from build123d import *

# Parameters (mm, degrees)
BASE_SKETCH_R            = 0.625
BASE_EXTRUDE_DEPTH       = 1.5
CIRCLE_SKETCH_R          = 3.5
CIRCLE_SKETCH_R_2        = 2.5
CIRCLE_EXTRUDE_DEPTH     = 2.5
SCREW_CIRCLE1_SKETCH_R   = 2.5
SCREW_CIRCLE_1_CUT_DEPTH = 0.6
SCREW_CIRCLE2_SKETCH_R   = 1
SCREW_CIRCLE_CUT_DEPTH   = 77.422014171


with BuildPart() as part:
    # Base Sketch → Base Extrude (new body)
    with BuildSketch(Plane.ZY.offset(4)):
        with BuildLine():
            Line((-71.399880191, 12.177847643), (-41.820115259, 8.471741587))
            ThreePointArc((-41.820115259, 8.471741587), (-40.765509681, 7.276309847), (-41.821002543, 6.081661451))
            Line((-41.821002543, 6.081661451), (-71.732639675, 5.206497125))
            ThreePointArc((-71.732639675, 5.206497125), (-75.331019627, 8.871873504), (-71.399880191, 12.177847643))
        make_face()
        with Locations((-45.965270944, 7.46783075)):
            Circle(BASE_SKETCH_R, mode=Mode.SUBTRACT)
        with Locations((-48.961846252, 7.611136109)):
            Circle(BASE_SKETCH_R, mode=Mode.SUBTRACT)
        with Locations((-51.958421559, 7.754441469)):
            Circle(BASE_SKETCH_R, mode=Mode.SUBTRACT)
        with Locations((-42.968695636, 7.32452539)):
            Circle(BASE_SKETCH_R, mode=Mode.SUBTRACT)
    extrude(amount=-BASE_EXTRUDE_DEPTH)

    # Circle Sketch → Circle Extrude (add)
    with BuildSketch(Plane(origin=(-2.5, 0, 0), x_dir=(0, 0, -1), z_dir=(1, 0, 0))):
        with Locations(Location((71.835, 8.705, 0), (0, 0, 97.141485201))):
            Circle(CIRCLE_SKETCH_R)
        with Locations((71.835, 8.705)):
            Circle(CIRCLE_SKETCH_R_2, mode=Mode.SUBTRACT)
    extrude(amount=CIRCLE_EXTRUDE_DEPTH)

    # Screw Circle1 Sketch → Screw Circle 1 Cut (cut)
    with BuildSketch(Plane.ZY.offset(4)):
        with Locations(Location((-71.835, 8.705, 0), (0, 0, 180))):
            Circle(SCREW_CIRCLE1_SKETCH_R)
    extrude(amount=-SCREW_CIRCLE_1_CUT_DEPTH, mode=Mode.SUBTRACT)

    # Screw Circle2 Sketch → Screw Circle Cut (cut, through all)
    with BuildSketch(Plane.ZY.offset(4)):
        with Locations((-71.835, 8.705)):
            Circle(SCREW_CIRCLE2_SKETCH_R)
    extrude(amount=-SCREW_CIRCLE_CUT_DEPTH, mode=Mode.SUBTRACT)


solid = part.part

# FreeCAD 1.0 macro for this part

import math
import FreeCAD as App
import Part
import Sketcher
from FreeCAD import Vector
Q = App.Units.Quantity

doc = App.newDocument("Part")
body = doc.addObject("PartDesign::Body", "Body")

# Sketch on YZ plane
sketch1 = body.newObject("Sketcher::SketchObject", "Sketch")
sketch1.AttachmentSupport = (doc.getObject("YZ_Plane"), [""])
sketch1.MapMode = "FlatFace"
sketch1.AttachmentOffset = App.Placement(Vector(0, 0, -4), App.Rotation())
sketch1.addGeometry(Part.LineSegment(Vector(8.471742, -41.820115, 0), Vector(12.177848, -71.39988, 0)), False)
sketch1.addGeometry(Part.ArcOfCircle(Part.Circle(Vector(8.705, -71.835, 0), Vector(0, 0, 1), 3.5), math.radians(178.3241), math.radians(367.141485)), False)
sketch1.addGeometry(Part.LineSegment(Vector(5.206497, -71.73264, 0), Vector(6.081661, -41.821003, 0)), False)
sketch1.addGeometry(Part.ArcOfCircle(Part.Circle(Vector(7.276757, -41.969837, 0), Vector(0, 0, 1), 1.204328), math.radians(7.141485), math.radians(172.901055)), False)
sketch1.addGeometry(Part.Circle(Vector(7.324525, -42.968696, 0), Vector(0, 0, 1), 0.625), False)
sketch1.addGeometry(Part.Circle(Vector(7.467831, -45.965271, 0), Vector(0, 0, 1), 0.625), False)
sketch1.addGeometry(Part.Circle(Vector(7.611136, -48.961846, 0), Vector(0, 0, 1), 0.625), False)
sketch1.addGeometry(Part.Circle(Vector(7.754441, -51.958422, 0), Vector(0, 0, 1), 0.625), False)
sketch1.addConstraint(Sketcher.Constraint("Coincident", 0, 2, 1, 2))
sketch1.addConstraint(Sketcher.Constraint("Coincident", 1, 1, 2, 1))
sketch1.addConstraint(Sketcher.Constraint("Coincident", 2, 2, 3, 2))
sketch1.addConstraint(Sketcher.Constraint("Coincident", 3, 1, 0, 1))
sketch1.addConstraint(Sketcher.Constraint("Radius", 1, Q("3.5 mm")))
sketch1.addConstraint(Sketcher.Constraint("Diameter", 4, Q("1.25 mm")))
sketch1.addConstraint(Sketcher.Constraint("Diameter", 5, Q("1.25 mm")))
sketch1.addConstraint(Sketcher.Constraint("Diameter", 6, Q("1.25 mm")))
sketch1.addConstraint(Sketcher.Constraint("Diameter", 7, Q("1.25 mm")))
sketch1.addConstraint(Sketcher.Constraint("DistanceX", -1, 1, 1, 3, Q("8.705 mm")))
sketch1.addConstraint(Sketcher.Constraint("DistanceY", 1, 3, -1, 1, Q("71.835 mm")))
sketch1.addConstraint(Sketcher.Constraint("Radius", 3, Q("1.204328 mm")))
sketch1.addConstraint(Sketcher.Constraint("DistanceX", -1, 1, 5, 3, Q("7.467831 mm")))
sketch1.addConstraint(Sketcher.Constraint("DistanceY", 5, 3, -1, 1, Q("45.965271 mm")))
sketch1.addConstraint(Sketcher.Constraint("DistanceX", -1, 1, 7, 3, Q("7.754441 mm")))
sketch1.addConstraint(Sketcher.Constraint("DistanceY", 7, 3, -1, 1, Q("51.958422 mm")))
sketch1.addConstraint(Sketcher.Constraint("DistanceY", 0, 2, -1, 1, Q("71.39988 mm")))
sketch1.addConstraint(Sketcher.Constraint("DistanceY", 1, 1, -1, 1, Q("71.73264 mm")))
sketch1.addConstraint(Sketcher.Constraint("DistanceX", -1, 1, 2, 2, Q("6.081661 mm")))
sketch1.addConstraint(Sketcher.Constraint("DistanceX", -1, 1, 3, 1, Q("8.471742 mm")))
sketch1.addConstraint(Sketcher.Constraint("DistanceX", 3, 3, 4, 3, Q("0.047768 mm")))
sketch1.addConstraint(Sketcher.Constraint("DistanceY", 4, 3, 3, 3, Q("0.998858 mm")))
sketch1.addConstraint(Sketcher.Constraint("DistanceX", 4, 3, 6, 3, Q("0.286611 mm")))
sketch1.addConstraint(Sketcher.Constraint("DistanceY", 6, 3, 4, 3, Q("5.993151 mm")))
sketch1.addConstraint(Sketcher.Constraint("DistanceX", 6, 3, 0, 2, Q("4.566712 mm")))
sketch1.addConstraint(Sketcher.Constraint("DistanceY", 5, 3, 2, 2, Q("4.144268 mm")))
pad1 = body.newObject("PartDesign::Pad", "Pad")
pad1.Profile = sketch1
pad1.Length = 1.5

# Sketch on YZ plane
sketch2 = body.newObject("Sketcher::SketchObject", "Sketch001")
sketch2.AttachmentSupport = (doc.getObject("YZ_Plane"), [""])
sketch2.MapMode = "FlatFace"
sketch2.AttachmentOffset = App.Placement(Vector(0, 0, -2.5), App.Rotation())
sketch2.addGeometry(Part.Circle(Vector(8.7, -71.8, 0), Vector(0, 0, 1), 3.5), False)
sketch2.addGeometry(Part.Circle(Vector(8.7, -71.8, 0), Vector(0, 0, 1), 2.5), False)
sketch2.addConstraint(Sketcher.Constraint("Coincident", 1, 3, 0, 3))
sketch2.addConstraint(Sketcher.Constraint("Diameter", 0, Q("7 mm")))
sketch2.addConstraint(Sketcher.Constraint("Diameter", 1, Q("5 mm")))
sketch2.addConstraint(Sketcher.Constraint("DistanceX", -1, 1, 0, 3, Q("8.705 mm")))
sketch2.addConstraint(Sketcher.Constraint("DistanceY", 0, 3, -1, 1, Q("71.835 mm")))
pad2 = body.newObject("PartDesign::Pad", "Pad001")
pad2.Profile = sketch2
pad2.Length = 2.5

# Sketch on YZ plane
sketch3 = body.newObject("Sketcher::SketchObject", "Sketch002")
sketch3.AttachmentSupport = (doc.getObject("YZ_Plane"), [""])
sketch3.MapMode = "FlatFace"
sketch3.AttachmentOffset = App.Placement(Vector(0, 0, -4), App.Rotation())
sketch3.addGeometry(Part.Circle(Vector(8.7, -71.8, 0), Vector(0, 0, 1), 2.5), False)
sketch3.addConstraint(Sketcher.Constraint("Diameter", 0, Q("5 mm")))
sketch3.addConstraint(Sketcher.Constraint("DistanceX", -1, 1, 0, 3, Q("8.705 mm")))
sketch3.addConstraint(Sketcher.Constraint("DistanceY", 0, 3, -1, 1, Q("71.835 mm")))
pocket1 = body.newObject("PartDesign::Pocket", "Pocket")
pocket1.Profile = sketch3
pocket1.Length = 0.6
pocket1.Reversed = True

# Sketch on YZ plane
sketch4 = body.newObject("Sketcher::SketchObject", "Sketch003")
sketch4.AttachmentSupport = (doc.getObject("YZ_Plane"), [""])
sketch4.MapMode = "FlatFace"
sketch4.AttachmentOffset = App.Placement(Vector(0, 0, -4), App.Rotation())
sketch4.addGeometry(Part.Circle(Vector(8.7, -71.8, 0), Vector(0, 0, 1), 1), False)
sketch4.addConstraint(Sketcher.Constraint("Diameter", 0, Q("2 mm")))
sketch4.addConstraint(Sketcher.Constraint("DistanceX", -1, 1, 0, 3, Q("8.705 mm")))
sketch4.addConstraint(Sketcher.Constraint("DistanceY", 0, 3, -1, 1, Q("71.835 mm")))
pocket2 = body.newObject("PartDesign::Pocket", "Pocket001")
pocket2.Profile = sketch4
pocket2.Type = "ThroughAll"
pocket2.Reversed = True

doc.recompute()
